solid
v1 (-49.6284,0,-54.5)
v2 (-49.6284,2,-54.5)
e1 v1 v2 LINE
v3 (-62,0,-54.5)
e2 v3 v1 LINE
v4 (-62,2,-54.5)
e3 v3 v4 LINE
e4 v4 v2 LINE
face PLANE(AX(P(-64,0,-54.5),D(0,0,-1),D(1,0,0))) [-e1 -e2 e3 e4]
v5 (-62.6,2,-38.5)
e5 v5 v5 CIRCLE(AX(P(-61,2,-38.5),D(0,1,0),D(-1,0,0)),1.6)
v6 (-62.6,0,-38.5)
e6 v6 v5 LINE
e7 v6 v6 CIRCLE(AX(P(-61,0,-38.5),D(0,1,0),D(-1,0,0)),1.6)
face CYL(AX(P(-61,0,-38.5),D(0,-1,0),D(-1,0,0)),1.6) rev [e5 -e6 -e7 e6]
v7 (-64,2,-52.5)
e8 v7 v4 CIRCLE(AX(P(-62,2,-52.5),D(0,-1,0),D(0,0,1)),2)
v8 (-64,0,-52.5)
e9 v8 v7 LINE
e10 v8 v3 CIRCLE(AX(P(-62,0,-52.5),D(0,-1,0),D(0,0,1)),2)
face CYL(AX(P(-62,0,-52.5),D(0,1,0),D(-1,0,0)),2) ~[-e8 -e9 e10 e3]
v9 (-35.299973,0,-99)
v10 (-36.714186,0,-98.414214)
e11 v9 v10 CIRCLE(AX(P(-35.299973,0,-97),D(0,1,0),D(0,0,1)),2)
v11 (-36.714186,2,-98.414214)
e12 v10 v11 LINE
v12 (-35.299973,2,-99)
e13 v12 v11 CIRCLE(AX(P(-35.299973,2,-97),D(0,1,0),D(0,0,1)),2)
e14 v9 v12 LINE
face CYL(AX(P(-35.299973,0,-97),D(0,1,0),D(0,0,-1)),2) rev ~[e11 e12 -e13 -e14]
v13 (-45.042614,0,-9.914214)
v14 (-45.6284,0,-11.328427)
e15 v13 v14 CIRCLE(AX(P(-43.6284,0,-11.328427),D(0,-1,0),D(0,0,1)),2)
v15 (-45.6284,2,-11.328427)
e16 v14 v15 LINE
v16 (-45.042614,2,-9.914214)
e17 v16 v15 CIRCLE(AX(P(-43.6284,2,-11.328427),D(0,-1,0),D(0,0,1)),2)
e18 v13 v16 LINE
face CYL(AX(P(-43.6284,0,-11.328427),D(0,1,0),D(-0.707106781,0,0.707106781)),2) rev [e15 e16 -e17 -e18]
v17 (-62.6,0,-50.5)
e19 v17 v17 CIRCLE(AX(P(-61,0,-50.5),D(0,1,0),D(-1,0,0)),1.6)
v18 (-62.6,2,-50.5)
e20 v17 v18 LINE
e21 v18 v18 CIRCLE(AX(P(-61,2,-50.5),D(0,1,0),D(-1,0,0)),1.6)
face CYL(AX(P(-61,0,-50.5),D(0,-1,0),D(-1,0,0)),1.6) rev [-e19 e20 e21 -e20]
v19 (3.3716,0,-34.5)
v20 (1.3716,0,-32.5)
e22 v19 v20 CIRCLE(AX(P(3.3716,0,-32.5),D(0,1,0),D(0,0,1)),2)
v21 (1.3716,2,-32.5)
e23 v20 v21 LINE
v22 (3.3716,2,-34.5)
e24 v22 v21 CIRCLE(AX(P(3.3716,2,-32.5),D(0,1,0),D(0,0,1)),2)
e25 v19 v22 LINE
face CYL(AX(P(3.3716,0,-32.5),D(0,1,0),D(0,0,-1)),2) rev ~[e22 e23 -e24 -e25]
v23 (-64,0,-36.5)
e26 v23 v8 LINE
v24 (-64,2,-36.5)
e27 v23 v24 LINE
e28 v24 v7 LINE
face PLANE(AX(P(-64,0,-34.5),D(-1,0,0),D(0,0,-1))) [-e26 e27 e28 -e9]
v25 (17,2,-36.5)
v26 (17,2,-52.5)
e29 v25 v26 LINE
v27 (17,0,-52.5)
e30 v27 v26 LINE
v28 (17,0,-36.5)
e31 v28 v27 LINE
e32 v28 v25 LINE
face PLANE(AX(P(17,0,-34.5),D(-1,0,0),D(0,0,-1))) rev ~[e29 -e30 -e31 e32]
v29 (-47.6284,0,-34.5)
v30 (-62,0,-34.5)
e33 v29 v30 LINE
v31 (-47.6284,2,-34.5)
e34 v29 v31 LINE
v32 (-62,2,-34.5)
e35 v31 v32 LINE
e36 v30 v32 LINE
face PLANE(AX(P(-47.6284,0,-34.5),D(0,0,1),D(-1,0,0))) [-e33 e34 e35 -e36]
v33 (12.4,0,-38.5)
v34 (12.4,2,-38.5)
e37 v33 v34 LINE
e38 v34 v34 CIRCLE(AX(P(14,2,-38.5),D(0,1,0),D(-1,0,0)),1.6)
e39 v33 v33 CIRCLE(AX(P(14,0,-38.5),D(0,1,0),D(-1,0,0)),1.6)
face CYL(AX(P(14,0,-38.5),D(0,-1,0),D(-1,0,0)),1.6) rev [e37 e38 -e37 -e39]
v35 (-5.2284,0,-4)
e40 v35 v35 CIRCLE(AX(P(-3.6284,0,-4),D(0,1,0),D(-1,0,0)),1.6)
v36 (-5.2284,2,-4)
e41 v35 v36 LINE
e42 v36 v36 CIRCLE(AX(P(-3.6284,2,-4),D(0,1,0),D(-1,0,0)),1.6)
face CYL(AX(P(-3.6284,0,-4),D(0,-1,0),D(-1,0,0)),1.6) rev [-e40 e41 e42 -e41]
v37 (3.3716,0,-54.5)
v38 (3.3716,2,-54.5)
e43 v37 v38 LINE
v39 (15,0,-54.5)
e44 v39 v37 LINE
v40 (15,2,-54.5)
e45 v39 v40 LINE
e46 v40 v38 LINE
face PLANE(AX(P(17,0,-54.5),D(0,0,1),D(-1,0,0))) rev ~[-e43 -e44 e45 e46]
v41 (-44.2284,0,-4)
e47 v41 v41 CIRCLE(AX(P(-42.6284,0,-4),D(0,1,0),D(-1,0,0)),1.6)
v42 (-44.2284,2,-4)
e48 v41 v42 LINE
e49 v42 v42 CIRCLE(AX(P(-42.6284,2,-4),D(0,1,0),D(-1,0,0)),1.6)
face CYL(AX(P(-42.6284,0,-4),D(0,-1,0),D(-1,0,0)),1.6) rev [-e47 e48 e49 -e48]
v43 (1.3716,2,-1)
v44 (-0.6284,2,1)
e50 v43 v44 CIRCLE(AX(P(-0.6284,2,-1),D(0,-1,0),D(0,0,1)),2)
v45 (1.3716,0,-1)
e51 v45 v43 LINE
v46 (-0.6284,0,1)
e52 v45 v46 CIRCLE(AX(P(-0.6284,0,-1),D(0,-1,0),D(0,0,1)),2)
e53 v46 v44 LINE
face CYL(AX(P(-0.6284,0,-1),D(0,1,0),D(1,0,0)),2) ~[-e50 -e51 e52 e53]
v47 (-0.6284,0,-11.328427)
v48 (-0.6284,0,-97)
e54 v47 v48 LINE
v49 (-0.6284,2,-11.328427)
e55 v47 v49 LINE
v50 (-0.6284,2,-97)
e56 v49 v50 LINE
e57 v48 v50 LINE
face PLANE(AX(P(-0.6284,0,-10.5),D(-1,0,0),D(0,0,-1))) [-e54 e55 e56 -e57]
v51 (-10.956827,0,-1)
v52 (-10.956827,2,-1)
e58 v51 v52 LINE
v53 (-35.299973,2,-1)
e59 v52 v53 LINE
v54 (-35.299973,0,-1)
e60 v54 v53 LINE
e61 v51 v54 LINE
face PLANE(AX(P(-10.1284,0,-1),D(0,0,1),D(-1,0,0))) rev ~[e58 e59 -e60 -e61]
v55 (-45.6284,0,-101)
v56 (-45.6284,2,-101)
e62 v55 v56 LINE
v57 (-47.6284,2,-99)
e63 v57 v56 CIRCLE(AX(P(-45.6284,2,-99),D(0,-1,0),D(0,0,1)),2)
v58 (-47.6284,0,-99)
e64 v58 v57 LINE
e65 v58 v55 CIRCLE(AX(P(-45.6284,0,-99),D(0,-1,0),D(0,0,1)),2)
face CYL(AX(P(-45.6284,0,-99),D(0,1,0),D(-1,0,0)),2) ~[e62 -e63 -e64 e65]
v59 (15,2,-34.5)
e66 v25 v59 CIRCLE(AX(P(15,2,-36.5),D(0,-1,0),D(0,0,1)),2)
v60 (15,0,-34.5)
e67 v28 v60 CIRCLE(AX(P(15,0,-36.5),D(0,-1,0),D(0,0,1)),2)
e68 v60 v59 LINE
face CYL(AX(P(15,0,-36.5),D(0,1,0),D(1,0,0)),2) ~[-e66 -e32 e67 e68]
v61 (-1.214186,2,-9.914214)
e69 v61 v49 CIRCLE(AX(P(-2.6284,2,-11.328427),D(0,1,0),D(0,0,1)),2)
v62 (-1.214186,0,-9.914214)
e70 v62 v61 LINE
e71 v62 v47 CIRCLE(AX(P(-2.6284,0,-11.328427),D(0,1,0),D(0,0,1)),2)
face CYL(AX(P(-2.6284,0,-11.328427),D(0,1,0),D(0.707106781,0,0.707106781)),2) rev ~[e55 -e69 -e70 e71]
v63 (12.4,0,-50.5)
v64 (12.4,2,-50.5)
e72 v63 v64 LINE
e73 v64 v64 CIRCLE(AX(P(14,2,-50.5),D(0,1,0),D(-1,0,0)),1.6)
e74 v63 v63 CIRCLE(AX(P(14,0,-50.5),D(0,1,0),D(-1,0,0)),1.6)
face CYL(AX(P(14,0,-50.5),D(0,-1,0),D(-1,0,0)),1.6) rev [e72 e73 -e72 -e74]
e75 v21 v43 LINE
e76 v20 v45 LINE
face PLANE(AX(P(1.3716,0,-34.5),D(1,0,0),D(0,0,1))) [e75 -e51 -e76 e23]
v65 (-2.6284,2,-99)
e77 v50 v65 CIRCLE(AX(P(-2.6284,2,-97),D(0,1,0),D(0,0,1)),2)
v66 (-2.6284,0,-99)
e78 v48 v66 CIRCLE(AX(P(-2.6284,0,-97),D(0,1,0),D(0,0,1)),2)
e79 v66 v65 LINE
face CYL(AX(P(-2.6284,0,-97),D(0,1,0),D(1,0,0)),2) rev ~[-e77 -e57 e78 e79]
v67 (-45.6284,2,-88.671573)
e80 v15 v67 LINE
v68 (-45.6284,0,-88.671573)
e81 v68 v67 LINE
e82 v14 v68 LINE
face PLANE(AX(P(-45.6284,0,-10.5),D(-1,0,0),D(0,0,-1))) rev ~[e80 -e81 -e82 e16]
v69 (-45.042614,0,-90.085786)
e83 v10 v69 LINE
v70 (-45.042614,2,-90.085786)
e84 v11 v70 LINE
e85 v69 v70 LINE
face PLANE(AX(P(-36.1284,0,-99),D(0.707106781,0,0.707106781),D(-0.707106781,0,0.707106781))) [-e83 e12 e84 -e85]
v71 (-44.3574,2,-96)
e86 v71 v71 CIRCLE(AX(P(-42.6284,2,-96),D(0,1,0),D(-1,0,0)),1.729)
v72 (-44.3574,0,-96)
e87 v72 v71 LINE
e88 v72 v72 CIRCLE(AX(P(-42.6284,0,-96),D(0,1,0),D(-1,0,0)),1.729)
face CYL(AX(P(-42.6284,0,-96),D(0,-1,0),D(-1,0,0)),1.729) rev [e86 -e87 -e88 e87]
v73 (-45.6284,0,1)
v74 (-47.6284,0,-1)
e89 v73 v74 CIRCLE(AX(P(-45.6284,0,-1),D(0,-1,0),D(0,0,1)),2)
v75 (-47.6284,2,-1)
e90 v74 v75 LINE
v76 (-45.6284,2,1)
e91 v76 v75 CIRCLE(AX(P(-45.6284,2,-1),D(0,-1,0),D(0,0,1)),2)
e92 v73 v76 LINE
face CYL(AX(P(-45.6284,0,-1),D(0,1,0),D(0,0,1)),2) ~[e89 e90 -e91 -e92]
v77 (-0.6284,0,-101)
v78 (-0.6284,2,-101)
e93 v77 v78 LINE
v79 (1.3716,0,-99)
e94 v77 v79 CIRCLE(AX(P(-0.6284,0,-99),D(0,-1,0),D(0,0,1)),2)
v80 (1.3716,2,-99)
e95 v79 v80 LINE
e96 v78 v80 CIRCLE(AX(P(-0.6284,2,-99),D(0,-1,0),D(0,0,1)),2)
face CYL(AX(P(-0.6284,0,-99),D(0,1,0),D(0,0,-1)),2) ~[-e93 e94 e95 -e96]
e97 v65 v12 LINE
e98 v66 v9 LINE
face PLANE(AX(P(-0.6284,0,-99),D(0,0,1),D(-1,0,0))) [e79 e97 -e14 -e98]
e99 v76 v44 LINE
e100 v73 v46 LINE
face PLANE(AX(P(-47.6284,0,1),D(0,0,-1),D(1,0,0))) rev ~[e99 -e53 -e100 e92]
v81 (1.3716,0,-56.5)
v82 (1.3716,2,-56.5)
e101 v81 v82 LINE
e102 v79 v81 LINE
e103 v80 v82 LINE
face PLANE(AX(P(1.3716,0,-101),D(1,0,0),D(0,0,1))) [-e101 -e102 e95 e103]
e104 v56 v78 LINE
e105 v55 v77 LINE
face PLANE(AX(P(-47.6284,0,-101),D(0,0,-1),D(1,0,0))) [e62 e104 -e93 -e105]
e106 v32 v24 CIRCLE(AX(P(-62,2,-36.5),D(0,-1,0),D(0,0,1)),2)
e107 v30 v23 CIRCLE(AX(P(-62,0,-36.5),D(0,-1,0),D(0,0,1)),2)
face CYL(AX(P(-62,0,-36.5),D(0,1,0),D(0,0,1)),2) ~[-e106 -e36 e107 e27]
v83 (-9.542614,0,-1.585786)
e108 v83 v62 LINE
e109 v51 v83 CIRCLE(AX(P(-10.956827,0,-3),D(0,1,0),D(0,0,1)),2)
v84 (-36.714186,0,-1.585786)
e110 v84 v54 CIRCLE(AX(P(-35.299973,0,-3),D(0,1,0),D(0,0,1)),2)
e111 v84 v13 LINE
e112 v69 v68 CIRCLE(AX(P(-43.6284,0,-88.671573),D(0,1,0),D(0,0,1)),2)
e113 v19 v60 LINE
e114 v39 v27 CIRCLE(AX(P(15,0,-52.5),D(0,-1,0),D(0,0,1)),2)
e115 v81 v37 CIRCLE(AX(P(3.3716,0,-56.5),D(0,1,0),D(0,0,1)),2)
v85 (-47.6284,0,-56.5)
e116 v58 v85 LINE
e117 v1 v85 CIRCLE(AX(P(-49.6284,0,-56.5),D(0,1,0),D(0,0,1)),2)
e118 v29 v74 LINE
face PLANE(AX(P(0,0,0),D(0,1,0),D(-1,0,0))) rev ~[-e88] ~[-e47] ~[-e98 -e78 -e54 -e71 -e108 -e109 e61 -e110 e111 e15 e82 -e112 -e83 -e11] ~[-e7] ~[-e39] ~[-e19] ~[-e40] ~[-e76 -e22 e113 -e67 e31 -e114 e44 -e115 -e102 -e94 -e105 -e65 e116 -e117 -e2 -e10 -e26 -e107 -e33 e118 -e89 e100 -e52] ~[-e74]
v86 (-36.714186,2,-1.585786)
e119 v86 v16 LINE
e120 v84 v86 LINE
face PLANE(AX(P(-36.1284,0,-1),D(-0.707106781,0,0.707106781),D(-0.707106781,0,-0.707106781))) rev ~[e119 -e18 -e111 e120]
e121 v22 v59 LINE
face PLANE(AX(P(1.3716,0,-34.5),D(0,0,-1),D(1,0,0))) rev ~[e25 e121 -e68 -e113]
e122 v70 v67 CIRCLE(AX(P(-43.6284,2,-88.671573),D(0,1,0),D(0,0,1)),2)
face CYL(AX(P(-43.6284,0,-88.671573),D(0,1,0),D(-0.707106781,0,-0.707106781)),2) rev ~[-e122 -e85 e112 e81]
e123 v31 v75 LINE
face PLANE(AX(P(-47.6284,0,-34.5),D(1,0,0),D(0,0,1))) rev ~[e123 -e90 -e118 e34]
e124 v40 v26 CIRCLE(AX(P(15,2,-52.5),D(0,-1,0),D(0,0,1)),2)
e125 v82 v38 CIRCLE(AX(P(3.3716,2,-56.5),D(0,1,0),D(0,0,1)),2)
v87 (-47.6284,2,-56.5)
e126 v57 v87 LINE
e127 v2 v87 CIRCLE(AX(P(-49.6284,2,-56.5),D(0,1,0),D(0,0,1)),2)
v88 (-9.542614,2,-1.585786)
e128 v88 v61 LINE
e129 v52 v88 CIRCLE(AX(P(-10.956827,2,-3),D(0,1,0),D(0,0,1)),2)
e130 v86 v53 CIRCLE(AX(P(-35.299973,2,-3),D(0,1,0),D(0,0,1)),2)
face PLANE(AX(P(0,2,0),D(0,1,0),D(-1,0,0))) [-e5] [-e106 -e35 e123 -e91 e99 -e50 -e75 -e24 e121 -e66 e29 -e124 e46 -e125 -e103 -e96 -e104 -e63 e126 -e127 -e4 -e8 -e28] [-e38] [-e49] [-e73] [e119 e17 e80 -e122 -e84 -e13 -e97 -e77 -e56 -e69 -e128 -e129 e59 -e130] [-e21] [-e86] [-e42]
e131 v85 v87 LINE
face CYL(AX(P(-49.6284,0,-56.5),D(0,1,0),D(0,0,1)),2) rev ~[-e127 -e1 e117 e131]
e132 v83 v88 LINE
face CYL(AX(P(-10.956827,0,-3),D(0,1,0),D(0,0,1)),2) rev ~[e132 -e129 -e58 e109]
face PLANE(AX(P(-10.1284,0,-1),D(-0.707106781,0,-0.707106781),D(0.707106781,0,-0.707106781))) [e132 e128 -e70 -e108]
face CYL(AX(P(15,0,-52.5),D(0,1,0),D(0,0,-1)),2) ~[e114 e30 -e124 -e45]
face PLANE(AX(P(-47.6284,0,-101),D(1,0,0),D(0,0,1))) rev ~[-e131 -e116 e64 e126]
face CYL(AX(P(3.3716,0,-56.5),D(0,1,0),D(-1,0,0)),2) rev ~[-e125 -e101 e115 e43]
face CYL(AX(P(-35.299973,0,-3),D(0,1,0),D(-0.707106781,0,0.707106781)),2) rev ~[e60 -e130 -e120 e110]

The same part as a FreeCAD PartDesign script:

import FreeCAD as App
import Part
import Sketcher
Q = App.Units.Quantity


def edges_at(feature, points):
    """Names of the edges that pass closest to the given points."""
    edges = feature.Shape.Edges
    near = lambda p: min(range(len(edges)), key=lambda i: edges[i].distToShape(Part.Vertex(*p))[0])
    return sorted({f"Edge{near(p) + 1}" for p in points})


def add_polygon(sketch, points):
    """Adds a closed chain of lines whose ends are joined by coincident constraints."""
    first, n = sketch.GeometryCount, len(points)
    for a, b in zip(points, points[1:] + points[:1]):
        sketch.addGeometry(Part.LineSegment(App.Vector(*a, 0), App.Vector(*b, 0)), False)
    for i in range(n):
        sketch.addConstraint(Sketcher.Constraint("Coincident", first + i, 2, first + (i + 1) % n, 1))

doc = App.newDocument("Part")
params = doc.addObject("Spreadsheet::Sheet", "Params")
for row, (alias, value) in enumerate([
    ("sketch1_diameter", "3.2 mm"),
    ("pad1_length", "2 mm"),
    ("fillet_radius", "2 mm"),
], start=1):
    params.set(f"A{row}", alias)
    params.set(f"B{row}", "=" + value)
    params.setAlias(f"B{row}", alias)

body = doc.addObject("PartDesign::Body", "Body")

# Sketch on XZ plane
sketch1 = body.newObject("Sketcher::SketchObject", "Sketch")
sketch1.AttachmentSupport = (doc.getObject("XZ_Plane"), [""])
sketch1.MapMode = "FlatFace"
add_polygon(sketch1, [(-64, -34.5), (-47.6, -34.5), (-47.6, 1), (1.4, 1), (1.4, -34.5), (17, -34.5), (17, -54.5), (1.4, -54.5), (1.4, -101), (-47.6, -101), (-47.6, -54.5), (-64, -54.5)])  # lines 0-11
sketch1.addGeometry(Part.Circle(App.Vector(14, -50.5, 0), App.Vector(0, 0, 1), 1.6), False)  # 12
sketch1.addGeometry(Part.Circle(App.Vector(-42.6, -96, 0), App.Vector(0, 0, 1), 1.7), False)  # 13
sketch1.addGeometry(Part.Circle(App.Vector(-61, -50.5, 0), App.Vector(0, 0, 1), 1.6), False)  # 14
sketch1.addGeometry(Part.Circle(App.Vector(14, -38.5, 0), App.Vector(0, 0, 1), 1.6), False)  # 15
add_polygon(sketch1, [(-36.1, -1), (-45.6, -10.5), (-45.6, -89.5), (-36.1, -99), (-0.6, -99), (-0.6, -10.5), (-10.1, -1)])  # lines 16-22
sketch1.addGeometry(Part.Circle(App.Vector(-3.6, -4, 0), App.Vector(0, 0, 1), 1.6), False)  # 23
sketch1.addGeometry(Part.Circle(App.Vector(-61, -38.5, 0), App.Vector(0, 0, 1), 1.6), False)  # 24
sketch1.addGeometry(Part.Circle(App.Vector(-42.6, -4, 0), App.Vector(0, 0, 1), 1.6), False)  # 25
sketch1.addConstraint([
    Sketcher.Constraint("Horizontal", 0),
    Sketcher.Constraint("Vertical", 1),
    Sketcher.Constraint("Horizontal", 2),
    Sketcher.Constraint("Vertical", 3),
    Sketcher.Constraint("Horizontal", 4),
    Sketcher.Constraint("Vertical", 5),
    Sketcher.Constraint("Horizontal", 6),
    Sketcher.Constraint("Vertical", 7),
    Sketcher.Constraint("Horizontal", 8),
    Sketcher.Constraint("Vertical", 9),
    Sketcher.Constraint("Horizontal", 10),
    Sketcher.Constraint("Vertical", 11),
    Sketcher.Constraint("Vertical", 17),
    Sketcher.Constraint("Horizontal", 19),
    Sketcher.Constraint("Vertical", 20),
    Sketcher.Constraint("Horizontal", 22),
    Sketcher.Constraint("Equal", 12, 14),
    Sketcher.Constraint("Equal", 14, 15),
    Sketcher.Constraint("Equal", 15, 23),
    Sketcher.Constraint("Equal", 23, 24),
    Sketcher.Constraint("Equal", 24, 25),
    Sketcher.Constraint("Perpendicular", 16, 18),
    Sketcher.Constraint("Parallel", 18, 21),
    Sketcher.Constraint("Horizontal", 12, 3, 14, 3),
    Sketcher.Constraint("Horizontal", 15, 3, 24, 3),
    Sketcher.Constraint("Horizontal", 23, 3, 25, 3),
    Sketcher.Constraint("Horizontal", 0, 2, 3, 2),
    Sketcher.Constraint("Horizontal", 6, 2, 9, 2),
    Sketcher.Constraint("Horizontal", 16, 2, 20, 2),
    Sketcher.Constraint("Vertical", 12, 3, 15, 3),
    Sketcher.Constraint("Vertical", 14, 3, 24, 3),
    Sketcher.Constraint("Vertical", 13, 3, 25, 3),
    Sketcher.Constraint("Vertical", 3, 2, 6, 2),
    Sketcher.Constraint("Vertical", 1, 2, 8, 2),
    Sketcher.Constraint("Vertical", 18, 2, 22, 2),
    Sketcher.Constraint("Equal", 19, 1),
    Sketcher.Constraint("Equal", 16, 18),
    Sketcher.Constraint("Diameter", 12, Q("3.2 mm")),
    Sketcher.Constraint("DistanceY", 13, 3, -1, 1, Q("96 mm")),
    Sketcher.Constraint("DistanceY", 23, 3, -1, 1, Q("4 mm")),
    Sketcher.Constraint("DistanceY", -1, 1, 1, 2, Q("1 mm")),
    Sketcher.Constraint("DistanceY", 21, 2, -1, 1, Q("1 mm")),
    Sketcher.Constraint("DistanceY", 12, 3, 15, 3, Q("12 mm")),
    Sketcher.Constraint("DistanceY", 24, 3, 0, 2, Q("4 mm")),
    Sketcher.Constraint("DistanceX", 0, 2, 25, 3, Q("5 mm")),
    Sketcher.Constraint("DistanceX", 23, 3, 2, 2, Q("5 mm")),
    Sketcher.Constraint("DistanceX", 15, 3, 4, 2, Q("3 mm")),
    Sketcher.Constraint("DistanceY", 5, 2, 12, 3, Q("4 mm")),
    Sketcher.Constraint("DistanceY", 7, 2, 13, 3, Q("5 mm")),
    Sketcher.Constraint("DistanceX", 10, 2, 14, 3, Q("3 mm")),
    Sketcher.Constraint("DistanceX", 16, 2, 25, 3, Q("3 mm")),
    Sketcher.Constraint("DistanceY", 18, 2, 13, 3, Q("3 mm")),
    Sketcher.Constraint("DistanceX", 17, 2, 19, 2, Q("45 mm")),
    Sketcher.Constraint("DistanceX", 23, 3, 20, 2, Q("3 mm")),
    Sketcher.Constraint("DistanceX", 17, 2, 18, 2, Q("9.5 mm")),
    Sketcher.Constraint("Diameter", 13, Q("3.458 mm")),
    Sketcher.Constraint("DistanceX", -1, 1, 12, 3, Q("14 mm")),
    Sketcher.Constraint("DistanceX", 14, 3, -1, 1, Q("61 mm")),
    Sketcher.Constraint("DistanceX", 0, 1, 0, 2, Q("16.3716 mm")),
])
sketch1.setExpression("Constraints[56]", "Params.sketch1_diameter")
pad1 = body.newObject("PartDesign::Pad", "Pad")
pad1.Profile = sketch1
pad1.setExpression("Length", "Params.pad1_length")
pad1.Reversed = True
doc.recompute()

fillet = body.newObject("PartDesign::Fillet", "Fillet")
fillet.Base = (pad1, edges_at(pad1, [
    (-45.628, 1, -89.5),
    (-36.128, 1, -99),
    (-64, 1, -34.5),
    (-47.628, 1, 1),
    (1.372, 1, 1),
    (17, 1, -34.5),
    (1.372, 1, -34.5),
    (17, 1, -54.5),
    (1.372, 1, -54.5),
    (1.372, 1, -101),
    (-47.628, 1, -101),
    (-64, 1, -54.5),
    (-45.628, 1, -10.5),
    (-36.128, 1, -1),
    (-10.128, 1, -1),
    (-0.628, 1, -10.5),
    (-47.628, 1, -54.5),
    (-0.628, 1, -99),
]))
fillet.setExpression("Radius", "Params.fillet_radius")

doc.recompute()
